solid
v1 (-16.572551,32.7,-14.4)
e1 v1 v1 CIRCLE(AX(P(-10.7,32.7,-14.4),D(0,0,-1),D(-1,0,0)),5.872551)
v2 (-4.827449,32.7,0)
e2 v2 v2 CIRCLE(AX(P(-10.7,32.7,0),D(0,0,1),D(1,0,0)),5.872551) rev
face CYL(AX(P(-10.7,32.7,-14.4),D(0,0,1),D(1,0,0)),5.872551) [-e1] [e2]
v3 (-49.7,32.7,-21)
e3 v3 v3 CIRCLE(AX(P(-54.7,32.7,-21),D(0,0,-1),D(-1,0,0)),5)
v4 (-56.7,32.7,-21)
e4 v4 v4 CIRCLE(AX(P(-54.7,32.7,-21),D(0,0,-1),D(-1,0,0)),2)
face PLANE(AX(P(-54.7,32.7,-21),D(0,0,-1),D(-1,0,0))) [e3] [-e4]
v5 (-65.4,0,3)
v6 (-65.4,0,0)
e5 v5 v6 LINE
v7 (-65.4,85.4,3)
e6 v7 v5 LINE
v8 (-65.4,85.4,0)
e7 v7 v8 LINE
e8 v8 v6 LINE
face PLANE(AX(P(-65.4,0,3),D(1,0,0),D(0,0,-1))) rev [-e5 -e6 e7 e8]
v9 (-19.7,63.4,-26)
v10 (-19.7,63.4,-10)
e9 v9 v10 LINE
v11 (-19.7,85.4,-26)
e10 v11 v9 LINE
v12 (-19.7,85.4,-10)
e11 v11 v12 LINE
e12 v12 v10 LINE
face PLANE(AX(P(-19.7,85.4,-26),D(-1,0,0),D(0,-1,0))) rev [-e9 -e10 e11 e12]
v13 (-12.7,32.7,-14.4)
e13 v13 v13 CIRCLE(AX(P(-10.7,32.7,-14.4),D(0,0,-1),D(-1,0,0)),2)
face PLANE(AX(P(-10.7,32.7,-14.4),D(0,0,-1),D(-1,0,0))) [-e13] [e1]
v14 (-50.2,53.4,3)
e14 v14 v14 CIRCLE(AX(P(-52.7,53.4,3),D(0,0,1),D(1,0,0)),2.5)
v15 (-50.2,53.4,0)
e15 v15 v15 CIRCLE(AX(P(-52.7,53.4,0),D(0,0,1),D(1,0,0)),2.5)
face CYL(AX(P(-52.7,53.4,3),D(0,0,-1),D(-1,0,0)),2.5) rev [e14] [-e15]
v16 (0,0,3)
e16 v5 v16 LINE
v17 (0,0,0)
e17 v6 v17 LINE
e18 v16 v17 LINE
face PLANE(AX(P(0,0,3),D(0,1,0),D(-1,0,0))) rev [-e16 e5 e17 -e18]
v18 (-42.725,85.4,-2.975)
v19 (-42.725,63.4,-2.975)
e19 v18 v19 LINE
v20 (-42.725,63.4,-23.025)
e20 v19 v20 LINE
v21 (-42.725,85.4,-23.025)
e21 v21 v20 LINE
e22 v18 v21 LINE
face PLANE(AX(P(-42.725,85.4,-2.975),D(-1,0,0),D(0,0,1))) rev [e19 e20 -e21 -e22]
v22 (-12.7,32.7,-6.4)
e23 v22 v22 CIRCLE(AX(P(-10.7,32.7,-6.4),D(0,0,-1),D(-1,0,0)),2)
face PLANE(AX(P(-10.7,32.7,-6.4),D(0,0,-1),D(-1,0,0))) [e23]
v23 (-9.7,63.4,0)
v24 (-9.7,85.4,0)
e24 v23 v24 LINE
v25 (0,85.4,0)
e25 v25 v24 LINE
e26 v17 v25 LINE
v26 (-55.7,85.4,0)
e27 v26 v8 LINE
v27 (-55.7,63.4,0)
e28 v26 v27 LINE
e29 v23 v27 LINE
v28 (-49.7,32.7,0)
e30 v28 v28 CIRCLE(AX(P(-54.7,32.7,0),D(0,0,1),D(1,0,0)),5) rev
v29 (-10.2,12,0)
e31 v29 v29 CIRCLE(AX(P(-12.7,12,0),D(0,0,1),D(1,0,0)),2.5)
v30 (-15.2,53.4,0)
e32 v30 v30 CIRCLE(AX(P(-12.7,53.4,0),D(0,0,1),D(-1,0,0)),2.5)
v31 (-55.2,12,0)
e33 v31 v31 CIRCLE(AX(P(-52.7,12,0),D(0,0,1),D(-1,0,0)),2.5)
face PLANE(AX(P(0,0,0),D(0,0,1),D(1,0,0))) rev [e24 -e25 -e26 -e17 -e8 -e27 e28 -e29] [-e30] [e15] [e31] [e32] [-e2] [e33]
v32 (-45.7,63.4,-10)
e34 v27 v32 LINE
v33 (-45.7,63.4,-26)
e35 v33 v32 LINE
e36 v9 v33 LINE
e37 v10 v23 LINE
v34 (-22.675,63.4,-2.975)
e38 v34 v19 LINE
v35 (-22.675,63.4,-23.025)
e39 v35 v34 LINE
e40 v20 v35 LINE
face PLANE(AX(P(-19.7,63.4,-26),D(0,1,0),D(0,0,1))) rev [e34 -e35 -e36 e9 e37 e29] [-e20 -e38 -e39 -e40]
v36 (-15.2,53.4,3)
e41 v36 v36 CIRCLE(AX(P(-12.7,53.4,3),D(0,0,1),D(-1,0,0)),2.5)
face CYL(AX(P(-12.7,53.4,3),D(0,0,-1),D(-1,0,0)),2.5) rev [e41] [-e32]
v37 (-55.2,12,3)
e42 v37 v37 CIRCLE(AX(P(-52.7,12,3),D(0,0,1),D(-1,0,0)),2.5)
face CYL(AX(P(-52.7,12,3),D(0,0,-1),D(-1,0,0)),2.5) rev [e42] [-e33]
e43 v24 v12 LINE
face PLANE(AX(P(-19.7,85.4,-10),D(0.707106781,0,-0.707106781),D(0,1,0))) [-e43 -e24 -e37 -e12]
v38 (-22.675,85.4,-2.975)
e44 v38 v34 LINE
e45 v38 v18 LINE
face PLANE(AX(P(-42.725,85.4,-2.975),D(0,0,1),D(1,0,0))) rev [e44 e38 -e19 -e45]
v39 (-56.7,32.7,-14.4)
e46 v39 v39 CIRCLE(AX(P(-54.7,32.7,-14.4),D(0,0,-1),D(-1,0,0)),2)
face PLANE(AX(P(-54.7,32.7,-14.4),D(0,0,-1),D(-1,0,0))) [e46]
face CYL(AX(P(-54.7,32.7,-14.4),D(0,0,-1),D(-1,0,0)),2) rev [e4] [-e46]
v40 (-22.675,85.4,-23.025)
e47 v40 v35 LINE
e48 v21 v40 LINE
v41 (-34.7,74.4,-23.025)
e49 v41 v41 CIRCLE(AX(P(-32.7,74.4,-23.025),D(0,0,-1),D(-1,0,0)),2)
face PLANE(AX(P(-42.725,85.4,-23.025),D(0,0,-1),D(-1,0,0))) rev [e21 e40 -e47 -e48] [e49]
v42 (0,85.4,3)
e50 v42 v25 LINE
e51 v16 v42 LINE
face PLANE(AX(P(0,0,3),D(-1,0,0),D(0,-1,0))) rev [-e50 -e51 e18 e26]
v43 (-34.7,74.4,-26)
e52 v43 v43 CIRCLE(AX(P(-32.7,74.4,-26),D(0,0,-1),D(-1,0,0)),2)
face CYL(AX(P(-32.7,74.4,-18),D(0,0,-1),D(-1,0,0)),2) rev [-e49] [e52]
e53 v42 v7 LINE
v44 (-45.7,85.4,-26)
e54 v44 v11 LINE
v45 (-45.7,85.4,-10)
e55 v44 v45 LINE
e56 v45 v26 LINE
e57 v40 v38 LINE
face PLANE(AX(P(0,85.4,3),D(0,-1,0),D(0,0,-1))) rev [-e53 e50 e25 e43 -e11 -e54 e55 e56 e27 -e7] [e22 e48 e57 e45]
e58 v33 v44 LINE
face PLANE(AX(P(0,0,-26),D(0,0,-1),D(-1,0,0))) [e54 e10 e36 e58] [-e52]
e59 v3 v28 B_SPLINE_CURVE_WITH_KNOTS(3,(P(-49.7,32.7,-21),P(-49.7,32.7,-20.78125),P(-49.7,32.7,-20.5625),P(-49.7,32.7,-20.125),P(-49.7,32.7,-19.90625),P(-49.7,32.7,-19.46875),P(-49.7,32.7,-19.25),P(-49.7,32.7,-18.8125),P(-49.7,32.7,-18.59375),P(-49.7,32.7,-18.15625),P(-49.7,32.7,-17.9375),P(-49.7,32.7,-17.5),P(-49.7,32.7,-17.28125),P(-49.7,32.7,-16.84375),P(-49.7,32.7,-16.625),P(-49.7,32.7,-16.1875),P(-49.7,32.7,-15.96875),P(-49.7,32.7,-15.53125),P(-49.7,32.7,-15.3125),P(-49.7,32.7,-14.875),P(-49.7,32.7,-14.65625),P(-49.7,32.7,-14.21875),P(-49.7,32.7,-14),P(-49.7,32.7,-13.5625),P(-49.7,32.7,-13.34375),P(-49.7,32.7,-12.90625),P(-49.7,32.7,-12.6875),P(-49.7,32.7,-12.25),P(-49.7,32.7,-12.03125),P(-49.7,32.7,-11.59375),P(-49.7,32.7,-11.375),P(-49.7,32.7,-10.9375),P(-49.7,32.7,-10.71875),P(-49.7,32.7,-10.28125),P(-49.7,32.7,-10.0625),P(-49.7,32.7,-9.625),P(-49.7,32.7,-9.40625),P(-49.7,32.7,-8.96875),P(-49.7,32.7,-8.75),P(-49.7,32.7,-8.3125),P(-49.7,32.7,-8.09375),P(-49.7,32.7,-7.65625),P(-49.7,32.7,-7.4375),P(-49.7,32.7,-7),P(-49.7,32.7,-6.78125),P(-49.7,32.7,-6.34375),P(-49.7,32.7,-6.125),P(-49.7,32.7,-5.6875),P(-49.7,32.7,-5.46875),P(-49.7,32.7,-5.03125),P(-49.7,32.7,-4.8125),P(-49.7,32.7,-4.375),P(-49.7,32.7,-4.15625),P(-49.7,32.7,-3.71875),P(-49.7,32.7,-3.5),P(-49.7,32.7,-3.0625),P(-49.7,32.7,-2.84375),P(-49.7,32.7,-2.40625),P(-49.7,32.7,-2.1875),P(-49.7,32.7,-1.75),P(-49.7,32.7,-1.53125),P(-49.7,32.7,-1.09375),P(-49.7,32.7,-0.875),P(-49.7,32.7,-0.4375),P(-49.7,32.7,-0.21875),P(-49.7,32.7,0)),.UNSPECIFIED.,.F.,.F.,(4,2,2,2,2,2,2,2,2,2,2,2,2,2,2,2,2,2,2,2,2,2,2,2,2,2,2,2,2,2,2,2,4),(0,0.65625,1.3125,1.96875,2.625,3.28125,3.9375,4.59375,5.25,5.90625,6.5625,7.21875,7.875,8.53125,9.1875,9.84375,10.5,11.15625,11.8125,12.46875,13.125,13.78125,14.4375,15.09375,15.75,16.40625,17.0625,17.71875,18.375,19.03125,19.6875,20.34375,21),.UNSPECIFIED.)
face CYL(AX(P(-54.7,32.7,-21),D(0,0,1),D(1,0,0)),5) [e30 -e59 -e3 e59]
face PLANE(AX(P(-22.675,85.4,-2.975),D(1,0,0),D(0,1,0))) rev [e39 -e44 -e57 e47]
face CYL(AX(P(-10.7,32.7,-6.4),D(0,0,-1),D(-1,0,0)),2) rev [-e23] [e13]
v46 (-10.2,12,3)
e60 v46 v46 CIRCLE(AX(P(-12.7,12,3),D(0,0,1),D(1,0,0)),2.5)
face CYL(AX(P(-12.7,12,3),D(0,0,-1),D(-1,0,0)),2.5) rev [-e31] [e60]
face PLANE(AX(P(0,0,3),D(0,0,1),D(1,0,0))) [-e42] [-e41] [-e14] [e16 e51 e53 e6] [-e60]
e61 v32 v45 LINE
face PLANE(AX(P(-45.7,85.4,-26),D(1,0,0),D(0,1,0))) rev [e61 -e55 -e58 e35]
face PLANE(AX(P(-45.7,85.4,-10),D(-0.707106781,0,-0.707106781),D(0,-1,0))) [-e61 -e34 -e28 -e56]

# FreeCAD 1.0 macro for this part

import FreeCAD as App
import Part
import Sketcher
Q = App.Units.Quantity


def edges_at(feature, points):
    """Names of the edges that pass closest to the given points."""
    edges = feature.Shape.Edges
    near = lambda p: min(range(len(edges)), key=lambda i: edges[i].distToShape(Part.Vertex(*p))[0])
    return sorted({f"Edge{near(p) + 1}" for p in points})


def add_polygon(sketch, points):
    """Adds a closed chain of lines whose ends are joined by coincident constraints."""
    first, n = sketch.GeometryCount, len(points)
    for a, b in zip(points, points[1:] + points[:1]):
        sketch.addGeometry(Part.LineSegment(App.Vector(*a, 0), App.Vector(*b, 0)), False)
    for i in range(n):
        sketch.addConstraint(Sketcher.Constraint("Coincident", first + i, 2, first + (i + 1) % n, 1))

doc = App.newDocument("Part")
body = doc.addObject("PartDesign::Body", "Body")

# Sketch on XY plane
sketch1 = body.newObject("Sketcher::SketchObject", "Sketch")
sketch1.AttachmentSupport = (doc.getObject("XY_Plane"), [""])
sketch1.MapMode = "FlatFace"
add_polygon(sketch1, [(-65.4, 85.4), (-65.4, 0), (0, 0), (0, 85.4)])  # lines 0-3
sketch1.addGeometry(Part.Circle(App.Vector(-52.7, 12, 0), App.Vector(0, 0, 1), 2.5), False)  # 4
sketch1.addGeometry(Part.Circle(App.Vector(-12.7, 12, 0), App.Vector(0, 0, 1), 2.5), False)  # 5
sketch1.addGeometry(Part.Circle(App.Vector(-52.7, 53.4, 0), App.Vector(0, 0, 1), 2.5), False)  # 6
sketch1.addGeometry(Part.Circle(App.Vector(-12.7, 53.4, 0), App.Vector(0, 0, 1), 2.5), False)  # 7
sketch1.addConstraint([
    Sketcher.Constraint("Vertical", 0),
    Sketcher.Constraint("Horizontal", 1),
    Sketcher.Constraint("Vertical", 2),
    Sketcher.Constraint("Horizontal", 3),
    Sketcher.Constraint("Coincident", 1, 2, -1, 1),
    Sketcher.Constraint("Equal", 4, 5),
    Sketcher.Constraint("Equal", 5, 6),
    Sketcher.Constraint("Equal", 6, 7),
    Sketcher.Constraint("Horizontal", 4, 3, 5, 3),
    Sketcher.Constraint("Horizontal", 6, 3, 7, 3),
    Sketcher.Constraint("Vertical", 4, 3, 6, 3),
    Sketcher.Constraint("Vertical", 5, 3, 7, 3),
    Sketcher.Constraint("Diameter", 4, Q("5 mm")),
    Sketcher.Constraint("DistanceX", 1, 1, 1, 2, Q("65.4 mm")),
    Sketcher.Constraint("DistanceY", 0, 2, 0, 1, Q("85.4 mm")),
    Sketcher.Constraint("DistanceY", -1, 1, 4, 3, Q("12 mm")),
    Sketcher.Constraint("DistanceX", 4, 3, 5, 3, Q("40 mm")),
    Sketcher.Constraint("DistanceY", 7, 3, 2, 2, Q("32 mm")),
    Sketcher.Constraint("DistanceX", 4, 3, -1, 1, Q("52.7 mm")),
])
pad1 = body.newObject("PartDesign::Pad", "Pad")
pad1.Profile = sketch1
pad1.Length = 3

# Sketch on XY plane
sketch2 = body.newObject("Sketcher::SketchObject", "Sketch001")
sketch2.AttachmentSupport = (doc.getObject("XY_Plane"), [""])
sketch2.MapMode = "FlatFace"
add_polygon(sketch2, [(-19.7, 85.4), (-19.7, 63.4), (-45.7, 63.4), (-45.7, 85.4)])  # lines 0-3
sketch2.addConstraint([
    Sketcher.Constraint("Vertical", 0),
    Sketcher.Constraint("Horizontal", 1),
    Sketcher.Constraint("Vertical", 2),
    Sketcher.Constraint("Horizontal", 3),
    Sketcher.Constraint("DistanceX", 1, 2, 1, 1, Q("26 mm")),
    Sketcher.Constraint("DistanceY", 0, 2, 0, 1, Q("22 mm")),
    Sketcher.Constraint("DistanceX", 0, 2, -1, 1, Q("19.7 mm")),
    Sketcher.Constraint("DistanceY", -1, 1, 0, 2, Q("63.4 mm")),
])
pad2 = body.newObject("PartDesign::Pad", "Pad001")
pad2.Profile = sketch2
pad2.Length = 26
pad2.Reversed = True

# Sketch on XZ plane
sketch3 = body.newObject("Sketcher::SketchObject", "Sketch002")
sketch3.AttachmentSupport = (doc.getObject("XZ_Plane"), [""])
sketch3.MapMode = "FlatFace"
sketch3.AttachmentOffset = App.Placement(App.Vector(0, 0, -63.4), App.Rotation())
add_polygon(sketch3, [(-42.725, -2.975), (-42.725, -23.025), (-22.675, -23.025), (-22.675, -2.975)])  # lines 0-3
sketch3.addConstraint([
    Sketcher.Constraint("Vertical", 0),
    Sketcher.Constraint("Horizontal", 1),
    Sketcher.Constraint("Vertical", 2),
    Sketcher.Constraint("Horizontal", 3),
    Sketcher.Constraint("Equal", 3, 0),
    Sketcher.Constraint("DistanceX", 1, 1, 1, 2, Q("20.05 mm")),
    Sketcher.Constraint("DistanceX", 0, 2, -1, 1, Q("42.725 mm")),
    Sketcher.Constraint("DistanceY", 0, 2, -1, 1, Q("23.025 mm")),
])
pocket1 = body.newObject("PartDesign::Pocket", "Pocket")
pocket1.Profile = sketch3
pocket1.Type = "ThroughAll"

# Sketch on XY plane
sketch4 = body.newObject("Sketcher::SketchObject", "Sketch003")
sketch4.AttachmentSupport = (doc.getObject("XY_Plane"), [""])
sketch4.MapMode = "FlatFace"
sketch4.addGeometry(Part.Circle(App.Vector(-10.7, 32.7, 0), App.Vector(0, 0, 1), 5.872551), False)
sketch4.addConstraint([
    Sketcher.Constraint("DistanceX", 0, 3, -1, 1, Q("10.7 mm")),
    Sketcher.Constraint("DistanceY", -1, 1, 0, 3, Q("32.7 mm")),
    Sketcher.Constraint("Diameter", 0, Q("11.745103 mm")),
])
pad3 = body.newObject("PartDesign::Pad", "Pad002")
pad3.Profile = sketch4
pad3.Length = 14.4
pad3.Reversed = True

# Sketch on XY plane
sketch5 = body.newObject("Sketcher::SketchObject", "Sketch004")
sketch5.AttachmentSupport = (doc.getObject("XY_Plane"), [""])
sketch5.MapMode = "FlatFace"
sketch5.addGeometry(Part.Circle(App.Vector(-52.7, 32.7, 0), App.Vector(0, 0, 1), 2), False)
sketch5.addConstraint([
    Sketcher.Constraint("Diameter", 0, Q("4 mm")),
    Sketcher.Constraint("DistanceX", 0, 3, -1, 1, Q("52.7 mm")),
    Sketcher.Constraint("DistanceY", -1, 1, 0, 3, Q("32.7 mm")),
])
pad4 = body.newObject("PartDesign::Pad", "Pad003")
pad4.Profile = sketch5
pad4.Length = 14.4
pad4.Reversed = True

# Sketch on XY plane
sketch6 = body.newObject("Sketcher::SketchObject", "Sketch005")
sketch6.AttachmentSupport = (doc.getObject("XY_Plane"), [""])
sketch6.MapMode = "FlatFace"
sketch6.addGeometry(Part.Circle(App.Vector(-54.7, 32.7, 0), App.Vector(0, 0, 1), 5), False)
sketch6.addConstraint([
    Sketcher.Constraint("Diameter", 0, Q("10 mm")),
    Sketcher.Constraint("DistanceX", 0, 3, -1, 1, Q("54.7 mm")),
    Sketcher.Constraint("DistanceY", -1, 1, 0, 3, Q("32.7 mm")),
])
pad5 = body.newObject("PartDesign::Pad", "Pad004")
pad5.Profile = sketch6
pad5.Length = 21
pad5.Reversed = True

# Sketch on XY plane
sketch7 = body.newObject("Sketcher::SketchObject", "Sketch006")
sketch7.AttachmentSupport = (doc.getObject("XY_Plane"), [""])
sketch7.MapMode = "FlatFace"
sketch7.AttachmentOffset = App.Placement(App.Vector(0, 0, -21), App.Rotation())
sketch7.addGeometry(Part.Circle(App.Vector(-54.7, 32.7, 0), App.Vector(0, 0, 1), 2), False)
sketch7.addConstraint([
    Sketcher.Constraint("Diameter", 0, Q("4 mm")),
    Sketcher.Constraint("DistanceX", 0, 3, -1, 1, Q("54.7 mm")),
    Sketcher.Constraint("DistanceY", -1, 1, 0, 3, Q("32.7 mm")),
])
pocket2 = body.newObject("PartDesign::Pocket", "Pocket001")
pocket2.Profile = sketch7
pocket2.Length = 6.6
pocket2.Reversed = True

# Sketch on XY plane
sketch8 = body.newObject("Sketcher::SketchObject", "Sketch007")
sketch8.AttachmentSupport = (doc.getObject("XY_Plane"), [""])
sketch8.MapMode = "FlatFace"
sketch8.AttachmentOffset = App.Placement(App.Vector(0, 0, -14.4), App.Rotation())
sketch8.addGeometry(Part.Circle(App.Vector(-10.7, 32.7, 0), App.Vector(0, 0, 1), 2), False)
sketch8.addConstraint([
    Sketcher.Constraint("Diameter", 0, Q("4 mm")),
    Sketcher.Constraint("DistanceX", 0, 3, -1, 1, Q("10.7 mm")),
    Sketcher.Constraint("DistanceY", -1, 1, 0, 3, Q("32.7 mm")),
])
pocket3 = body.newObject("PartDesign::Pocket", "Pocket002")
pocket3.Profile = sketch8
pocket3.Length = 8
pocket3.Reversed = True
doc.recompute()

chamfer = body.newObject("PartDesign::Chamfer", "Chamfer")
chamfer.Base = (pocket3, edges_at(pocket3, [(-45.7, 74.4, 0)]))
chamfer.Size = 10
doc.recompute()

chamfer2 = body.newObject("PartDesign::Chamfer", "Chamfer001")
chamfer2.Base = (chamfer, edges_at(chamfer, [(-19.7, 74.4, 0)]))
chamfer2.Size = 10

# Sketch on XY plane
sketch9 = body.newObject("Sketcher::SketchObject", "Sketch008")
sketch9.AttachmentSupport = (doc.getObject("XY_Plane"), [""])
sketch9.MapMode = "FlatFace"
sketch9.AttachmentOffset = App.Placement(App.Vector(0, 0, -26), App.Rotation())
sketch9.addGeometry(Part.Circle(App.Vector(-32.7, 74.4, 0), App.Vector(0, 0, 1), 2), False)
sketch9.addConstraint([
    Sketcher.Constraint("Diameter", 0, Q("4 mm")),
    Sketcher.Constraint("DistanceX", 0, 3, -1, 1, Q("32.7 mm")),
    Sketcher.Constraint("DistanceY", -1, 1, 0, 3, Q("74.4 mm")),
])
pocket4 = body.newObject("PartDesign::Pocket", "Pocket003")
pocket4.Profile = sketch9
pocket4.Length = 8
pocket4.Reversed = True

doc.recompute()
